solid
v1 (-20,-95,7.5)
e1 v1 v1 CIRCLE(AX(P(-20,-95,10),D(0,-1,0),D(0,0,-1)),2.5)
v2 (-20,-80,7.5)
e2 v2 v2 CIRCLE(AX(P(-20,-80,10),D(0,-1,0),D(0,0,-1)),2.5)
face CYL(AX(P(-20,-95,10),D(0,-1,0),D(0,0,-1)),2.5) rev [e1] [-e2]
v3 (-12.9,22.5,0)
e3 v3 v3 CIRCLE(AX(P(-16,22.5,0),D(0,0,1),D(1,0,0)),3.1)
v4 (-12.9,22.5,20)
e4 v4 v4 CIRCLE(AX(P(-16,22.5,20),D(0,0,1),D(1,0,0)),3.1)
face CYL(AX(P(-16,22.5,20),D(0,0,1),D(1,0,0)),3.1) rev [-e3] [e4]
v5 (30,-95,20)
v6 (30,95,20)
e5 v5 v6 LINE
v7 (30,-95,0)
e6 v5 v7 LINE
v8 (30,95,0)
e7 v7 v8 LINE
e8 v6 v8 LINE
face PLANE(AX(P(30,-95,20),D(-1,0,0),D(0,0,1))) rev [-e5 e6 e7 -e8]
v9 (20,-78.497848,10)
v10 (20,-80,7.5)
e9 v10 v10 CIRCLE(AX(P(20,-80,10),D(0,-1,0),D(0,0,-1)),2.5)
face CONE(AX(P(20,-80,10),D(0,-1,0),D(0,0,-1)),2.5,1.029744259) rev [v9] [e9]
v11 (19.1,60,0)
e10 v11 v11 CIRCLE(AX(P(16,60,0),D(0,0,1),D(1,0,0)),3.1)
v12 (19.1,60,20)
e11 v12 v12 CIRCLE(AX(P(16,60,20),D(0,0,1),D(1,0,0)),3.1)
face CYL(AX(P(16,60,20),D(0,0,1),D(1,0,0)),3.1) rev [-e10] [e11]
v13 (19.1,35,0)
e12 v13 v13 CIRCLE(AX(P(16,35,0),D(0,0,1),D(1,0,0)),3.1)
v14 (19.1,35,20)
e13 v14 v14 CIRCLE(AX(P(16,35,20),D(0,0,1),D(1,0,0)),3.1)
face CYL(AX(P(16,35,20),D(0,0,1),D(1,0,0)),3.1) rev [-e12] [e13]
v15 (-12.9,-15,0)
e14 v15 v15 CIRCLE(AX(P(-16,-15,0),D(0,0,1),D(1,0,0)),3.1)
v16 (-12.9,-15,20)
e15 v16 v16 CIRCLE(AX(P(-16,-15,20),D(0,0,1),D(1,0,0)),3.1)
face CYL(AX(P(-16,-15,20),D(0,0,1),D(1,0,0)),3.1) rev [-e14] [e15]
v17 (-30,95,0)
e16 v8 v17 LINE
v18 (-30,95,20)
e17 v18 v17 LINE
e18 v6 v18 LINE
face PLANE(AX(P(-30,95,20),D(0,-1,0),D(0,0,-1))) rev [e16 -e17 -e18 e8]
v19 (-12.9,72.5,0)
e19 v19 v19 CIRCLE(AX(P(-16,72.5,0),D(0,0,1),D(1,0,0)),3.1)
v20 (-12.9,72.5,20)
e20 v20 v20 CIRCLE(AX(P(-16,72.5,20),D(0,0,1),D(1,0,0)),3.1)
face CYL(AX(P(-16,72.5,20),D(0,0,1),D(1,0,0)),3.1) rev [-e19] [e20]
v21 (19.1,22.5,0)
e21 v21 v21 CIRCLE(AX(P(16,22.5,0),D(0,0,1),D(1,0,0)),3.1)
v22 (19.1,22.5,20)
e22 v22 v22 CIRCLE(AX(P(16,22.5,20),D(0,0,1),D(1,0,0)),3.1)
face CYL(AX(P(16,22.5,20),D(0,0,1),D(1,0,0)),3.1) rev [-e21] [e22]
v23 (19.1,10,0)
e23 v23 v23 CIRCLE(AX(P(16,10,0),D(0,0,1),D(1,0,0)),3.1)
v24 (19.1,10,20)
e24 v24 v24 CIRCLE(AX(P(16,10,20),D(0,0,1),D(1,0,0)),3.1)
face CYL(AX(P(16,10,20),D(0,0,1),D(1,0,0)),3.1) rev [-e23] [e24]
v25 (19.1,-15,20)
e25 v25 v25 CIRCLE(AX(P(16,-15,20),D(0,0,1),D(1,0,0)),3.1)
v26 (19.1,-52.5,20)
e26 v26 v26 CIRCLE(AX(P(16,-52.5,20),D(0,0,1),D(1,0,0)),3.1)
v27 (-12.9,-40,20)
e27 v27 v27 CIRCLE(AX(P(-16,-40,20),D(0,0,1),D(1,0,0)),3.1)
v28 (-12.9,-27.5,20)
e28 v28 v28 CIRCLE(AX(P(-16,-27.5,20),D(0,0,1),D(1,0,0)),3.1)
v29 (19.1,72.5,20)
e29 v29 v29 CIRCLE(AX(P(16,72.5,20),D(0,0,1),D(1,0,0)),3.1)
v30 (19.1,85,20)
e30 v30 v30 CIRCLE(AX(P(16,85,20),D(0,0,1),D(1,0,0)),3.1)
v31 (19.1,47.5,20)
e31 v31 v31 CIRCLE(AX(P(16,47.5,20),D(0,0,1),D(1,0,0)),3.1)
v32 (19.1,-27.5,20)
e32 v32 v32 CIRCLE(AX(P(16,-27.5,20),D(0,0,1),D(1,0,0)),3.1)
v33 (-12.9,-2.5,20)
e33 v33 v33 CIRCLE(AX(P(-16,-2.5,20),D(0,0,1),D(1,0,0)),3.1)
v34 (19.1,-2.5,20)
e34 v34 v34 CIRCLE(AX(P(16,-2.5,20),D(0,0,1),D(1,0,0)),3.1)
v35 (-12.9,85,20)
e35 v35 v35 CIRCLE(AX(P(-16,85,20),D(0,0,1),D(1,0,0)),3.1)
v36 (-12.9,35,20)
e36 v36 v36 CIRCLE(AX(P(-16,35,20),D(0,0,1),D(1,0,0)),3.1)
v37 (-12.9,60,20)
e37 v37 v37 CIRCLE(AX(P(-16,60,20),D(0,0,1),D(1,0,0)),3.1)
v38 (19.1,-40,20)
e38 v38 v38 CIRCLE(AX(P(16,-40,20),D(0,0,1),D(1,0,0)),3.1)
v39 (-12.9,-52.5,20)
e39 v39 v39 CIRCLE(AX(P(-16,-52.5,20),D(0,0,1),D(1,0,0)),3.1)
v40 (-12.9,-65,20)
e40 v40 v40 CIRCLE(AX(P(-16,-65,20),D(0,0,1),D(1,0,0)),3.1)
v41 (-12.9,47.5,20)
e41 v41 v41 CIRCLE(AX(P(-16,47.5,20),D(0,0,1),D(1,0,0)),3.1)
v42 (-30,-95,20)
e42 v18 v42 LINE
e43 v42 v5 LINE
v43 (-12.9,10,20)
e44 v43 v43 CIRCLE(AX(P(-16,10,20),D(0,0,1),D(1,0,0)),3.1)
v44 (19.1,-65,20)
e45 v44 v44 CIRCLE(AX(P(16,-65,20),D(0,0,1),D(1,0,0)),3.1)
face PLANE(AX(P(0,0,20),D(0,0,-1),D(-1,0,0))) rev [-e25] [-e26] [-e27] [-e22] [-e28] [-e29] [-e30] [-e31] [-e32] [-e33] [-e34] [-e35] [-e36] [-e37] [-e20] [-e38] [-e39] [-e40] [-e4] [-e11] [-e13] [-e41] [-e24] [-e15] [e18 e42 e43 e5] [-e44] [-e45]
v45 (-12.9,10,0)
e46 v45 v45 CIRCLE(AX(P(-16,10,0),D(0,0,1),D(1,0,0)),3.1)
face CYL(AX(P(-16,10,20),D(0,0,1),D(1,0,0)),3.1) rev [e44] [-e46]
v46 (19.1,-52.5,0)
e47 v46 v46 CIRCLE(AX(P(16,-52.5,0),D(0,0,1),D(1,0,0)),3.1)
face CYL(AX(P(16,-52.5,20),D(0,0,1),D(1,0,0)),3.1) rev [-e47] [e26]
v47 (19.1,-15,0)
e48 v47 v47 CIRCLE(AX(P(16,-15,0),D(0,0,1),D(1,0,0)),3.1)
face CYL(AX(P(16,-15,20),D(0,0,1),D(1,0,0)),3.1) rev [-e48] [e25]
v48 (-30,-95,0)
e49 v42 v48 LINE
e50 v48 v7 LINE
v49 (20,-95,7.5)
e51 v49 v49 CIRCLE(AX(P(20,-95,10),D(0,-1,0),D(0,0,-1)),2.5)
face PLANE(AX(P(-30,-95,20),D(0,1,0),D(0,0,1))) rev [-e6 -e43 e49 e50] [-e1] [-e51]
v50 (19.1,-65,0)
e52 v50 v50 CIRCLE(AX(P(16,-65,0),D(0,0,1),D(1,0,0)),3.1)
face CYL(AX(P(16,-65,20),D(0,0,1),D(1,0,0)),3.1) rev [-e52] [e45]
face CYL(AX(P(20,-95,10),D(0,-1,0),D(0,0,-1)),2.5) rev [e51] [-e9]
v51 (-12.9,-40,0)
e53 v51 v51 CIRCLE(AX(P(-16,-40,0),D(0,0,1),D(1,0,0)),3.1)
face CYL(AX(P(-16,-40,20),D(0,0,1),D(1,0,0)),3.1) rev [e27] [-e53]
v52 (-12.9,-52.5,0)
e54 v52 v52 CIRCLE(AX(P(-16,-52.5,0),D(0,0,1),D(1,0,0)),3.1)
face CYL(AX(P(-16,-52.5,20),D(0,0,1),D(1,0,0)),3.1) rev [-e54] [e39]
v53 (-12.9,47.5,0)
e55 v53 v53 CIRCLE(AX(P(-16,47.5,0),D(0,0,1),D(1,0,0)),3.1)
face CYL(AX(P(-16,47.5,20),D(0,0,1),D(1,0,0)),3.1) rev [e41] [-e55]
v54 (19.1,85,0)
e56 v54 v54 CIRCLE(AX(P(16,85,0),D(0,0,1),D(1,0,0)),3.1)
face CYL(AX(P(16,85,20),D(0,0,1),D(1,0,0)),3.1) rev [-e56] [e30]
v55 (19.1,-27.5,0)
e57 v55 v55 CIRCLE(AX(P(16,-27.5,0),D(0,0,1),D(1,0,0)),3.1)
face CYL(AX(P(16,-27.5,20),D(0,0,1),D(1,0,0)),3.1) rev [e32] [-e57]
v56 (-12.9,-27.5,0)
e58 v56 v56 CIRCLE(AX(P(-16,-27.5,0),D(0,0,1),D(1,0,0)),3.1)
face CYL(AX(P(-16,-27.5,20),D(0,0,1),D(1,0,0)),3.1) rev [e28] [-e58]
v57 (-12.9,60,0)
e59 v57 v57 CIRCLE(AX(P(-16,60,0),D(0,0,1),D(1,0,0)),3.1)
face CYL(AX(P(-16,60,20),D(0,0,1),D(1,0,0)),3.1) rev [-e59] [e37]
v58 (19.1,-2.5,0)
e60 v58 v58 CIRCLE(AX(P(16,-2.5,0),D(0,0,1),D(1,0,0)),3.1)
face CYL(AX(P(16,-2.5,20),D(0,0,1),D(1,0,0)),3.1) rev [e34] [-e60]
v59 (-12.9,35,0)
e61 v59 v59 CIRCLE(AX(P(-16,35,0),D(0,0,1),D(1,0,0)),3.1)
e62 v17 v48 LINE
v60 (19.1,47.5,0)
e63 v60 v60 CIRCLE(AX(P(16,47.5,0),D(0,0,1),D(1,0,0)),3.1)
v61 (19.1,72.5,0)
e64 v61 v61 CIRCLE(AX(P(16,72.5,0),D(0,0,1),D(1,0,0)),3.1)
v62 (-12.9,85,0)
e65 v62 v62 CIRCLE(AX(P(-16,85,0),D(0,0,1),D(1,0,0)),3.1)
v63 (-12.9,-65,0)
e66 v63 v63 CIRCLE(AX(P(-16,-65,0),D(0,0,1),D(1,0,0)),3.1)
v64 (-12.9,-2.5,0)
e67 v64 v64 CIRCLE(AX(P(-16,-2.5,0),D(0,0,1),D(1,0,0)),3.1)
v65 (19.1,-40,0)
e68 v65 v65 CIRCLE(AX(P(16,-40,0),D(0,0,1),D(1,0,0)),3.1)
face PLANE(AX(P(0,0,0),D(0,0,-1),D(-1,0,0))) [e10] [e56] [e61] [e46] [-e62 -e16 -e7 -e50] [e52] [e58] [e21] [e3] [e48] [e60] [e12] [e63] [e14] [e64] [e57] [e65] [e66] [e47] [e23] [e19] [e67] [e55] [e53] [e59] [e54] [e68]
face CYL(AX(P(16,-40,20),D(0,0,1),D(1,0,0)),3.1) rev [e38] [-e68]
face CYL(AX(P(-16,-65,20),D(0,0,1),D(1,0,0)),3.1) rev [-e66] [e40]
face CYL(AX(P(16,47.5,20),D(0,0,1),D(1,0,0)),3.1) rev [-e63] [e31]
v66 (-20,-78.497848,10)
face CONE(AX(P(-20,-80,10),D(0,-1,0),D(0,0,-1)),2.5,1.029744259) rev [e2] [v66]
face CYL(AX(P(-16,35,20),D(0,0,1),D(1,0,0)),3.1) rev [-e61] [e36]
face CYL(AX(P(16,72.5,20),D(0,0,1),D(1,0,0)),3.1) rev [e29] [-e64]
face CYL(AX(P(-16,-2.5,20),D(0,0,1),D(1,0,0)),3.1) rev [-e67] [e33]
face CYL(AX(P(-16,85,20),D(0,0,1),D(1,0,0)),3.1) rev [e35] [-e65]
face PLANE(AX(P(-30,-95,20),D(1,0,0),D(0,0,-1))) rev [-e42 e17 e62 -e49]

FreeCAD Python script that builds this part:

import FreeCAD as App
import Part
import Sketcher

doc = App.newDocument("Part")
body = doc.addObject("PartDesign::Body", "Body")

# Sketch on XY plane
sketch1 = body.newObject("Sketcher::SketchObject", "Sketch")
sketch1.AttachmentSupport = (doc.getObject("XY_Plane"), [""])
sketch1.MapMode = "FlatFace"
sketch1.addGeometry(Part.LineSegment(App.Vector(-30, 95, 0), App.Vector(-30, -95, 0)), False)
sketch1.addGeometry(Part.LineSegment(App.Vector(-30, -95, 0), App.Vector(30, -95, 0)), False)
sketch1.addGeometry(Part.LineSegment(App.Vector(30, -95, 0), App.Vector(30, 95, 0)), False)
sketch1.addGeometry(Part.LineSegment(App.Vector(30, 95, 0), App.Vector(-30, 95, 0)), False)
sketch1.addConstraint(Sketcher.Constraint("Coincident", 0, 2, 1, 1))
sketch1.addConstraint(Sketcher.Constraint("Coincident", 1, 2, 2, 1))
sketch1.addConstraint(Sketcher.Constraint("Coincident", 2, 2, 3, 1))
sketch1.addConstraint(Sketcher.Constraint("Coincident", 3, 2, 0, 1))
sketch1.addConstraint(Sketcher.Constraint("Vertical", 0))
sketch1.addConstraint(Sketcher.Constraint("Horizontal", 1))
sketch1.addConstraint(Sketcher.Constraint("Vertical", 2))
sketch1.addConstraint(Sketcher.Constraint("Horizontal", 3))
sketch1.addConstraint(Sketcher.Constraint("Symmetric", 0, 2, 2, 2, -1, 1))
sketch1.addConstraint(Sketcher.Constraint("DistanceX", 1, 1, 1, 2, 60.0))
sketch1.addConstraint(Sketcher.Constraint("DistanceY", 0, 2, 0, 1, 190.0))
pad1 = body.newObject("PartDesign::Pad", "Pad")
pad1.Profile = sketch1
pad1.Length = 20

# Sketch on XZ plane
sketch2 = body.newObject("Sketcher::SketchObject", "Sketch001")
sketch2.AttachmentSupport = (doc.getObject("XZ_Plane"), [""])
sketch2.MapMode = "FlatFace"
sketch2.AttachmentOffset = App.Placement(App.Vector(0, 0, 95), App.Rotation())
sketch2.addGeometry(Part.Circle(App.Vector(20, 10, 0), App.Vector(0, 0, 1), 2.5), False)
sketch2.addGeometry(Part.Circle(App.Vector(-20, 10, 0), App.Vector(0, 0, 1), 2.5), False)
sketch2.addConstraint(Sketcher.Constraint("Equal", 0, 1))
sketch2.addConstraint(Sketcher.Constraint("Symmetric", 0, 3, 1, 3, -2))
sketch2.addConstraint(Sketcher.Constraint("Diameter", 0, 5.0))
sketch2.addConstraint(Sketcher.Constraint("DistanceX", -1, 1, 0, 3, 20.0))
sketch2.addConstraint(Sketcher.Constraint("DistanceY", -1, 1, 0, 3, 10.0))
doc.recompute()
hole = body.newObject("PartDesign::Hole", "Hole")
hole.Profile = sketch2
hole.ThreadType = "None"
hole.Diameter = 5
hole.DepthType = "Dimension"
hole.Depth = 15
hole.DrillPoint = "Angled"
hole.DrillPointAngle = 118

# Sketch on XY plane
sketch3 = body.newObject("Sketcher::SketchObject", "Sketch002")
sketch3.AttachmentSupport = (doc.getObject("XY_Plane"), [""])
sketch3.MapMode = "FlatFace"
sketch3.AttachmentOffset = App.Placement(App.Vector(0, 0, 20), App.Rotation())
sketch3.addGeometry(Part.Circle(App.Vector(-16, -65, 0), App.Vector(0, 0, 1), 3.1), False)
sketch3.addGeometry(Part.Circle(App.Vector(16, -65, 0), App.Vector(0, 0, 1), 3.1), False)
sketch3.addConstraint(Sketcher.Constraint("Equal", 0, 1))
sketch3.addConstraint(Sketcher.Constraint("Symmetric", 0, 3, 1, 3, -2))
sketch3.addConstraint(Sketcher.Constraint("Diameter", 0, 6.2))
sketch3.addConstraint(Sketcher.Constraint("DistanceX", 0, 3, -1, 1, 16.0))
sketch3.addConstraint(Sketcher.Constraint("DistanceY", 0, 3, -1, 1, 65.0))
doc.recompute()
hole2 = body.newObject("PartDesign::Hole", "Hole001")
hole2.Profile = sketch3
hole2.ThreadType = "None"
hole2.Diameter = 6.2
hole2.DepthType = "ThroughAll"
doc.recompute()

linearpattern = body.newObject("PartDesign::LinearPattern", "LinearPattern")
linearpattern.Originals = [hole2]
linearpattern.Direction = (doc.getObject("Y_Axis"), [""])
linearpattern.Mode = "offset"
linearpattern.Offset = 12.5
linearpattern.Occurrences = 13
body.Tip = linearpattern

doc.recompute()
